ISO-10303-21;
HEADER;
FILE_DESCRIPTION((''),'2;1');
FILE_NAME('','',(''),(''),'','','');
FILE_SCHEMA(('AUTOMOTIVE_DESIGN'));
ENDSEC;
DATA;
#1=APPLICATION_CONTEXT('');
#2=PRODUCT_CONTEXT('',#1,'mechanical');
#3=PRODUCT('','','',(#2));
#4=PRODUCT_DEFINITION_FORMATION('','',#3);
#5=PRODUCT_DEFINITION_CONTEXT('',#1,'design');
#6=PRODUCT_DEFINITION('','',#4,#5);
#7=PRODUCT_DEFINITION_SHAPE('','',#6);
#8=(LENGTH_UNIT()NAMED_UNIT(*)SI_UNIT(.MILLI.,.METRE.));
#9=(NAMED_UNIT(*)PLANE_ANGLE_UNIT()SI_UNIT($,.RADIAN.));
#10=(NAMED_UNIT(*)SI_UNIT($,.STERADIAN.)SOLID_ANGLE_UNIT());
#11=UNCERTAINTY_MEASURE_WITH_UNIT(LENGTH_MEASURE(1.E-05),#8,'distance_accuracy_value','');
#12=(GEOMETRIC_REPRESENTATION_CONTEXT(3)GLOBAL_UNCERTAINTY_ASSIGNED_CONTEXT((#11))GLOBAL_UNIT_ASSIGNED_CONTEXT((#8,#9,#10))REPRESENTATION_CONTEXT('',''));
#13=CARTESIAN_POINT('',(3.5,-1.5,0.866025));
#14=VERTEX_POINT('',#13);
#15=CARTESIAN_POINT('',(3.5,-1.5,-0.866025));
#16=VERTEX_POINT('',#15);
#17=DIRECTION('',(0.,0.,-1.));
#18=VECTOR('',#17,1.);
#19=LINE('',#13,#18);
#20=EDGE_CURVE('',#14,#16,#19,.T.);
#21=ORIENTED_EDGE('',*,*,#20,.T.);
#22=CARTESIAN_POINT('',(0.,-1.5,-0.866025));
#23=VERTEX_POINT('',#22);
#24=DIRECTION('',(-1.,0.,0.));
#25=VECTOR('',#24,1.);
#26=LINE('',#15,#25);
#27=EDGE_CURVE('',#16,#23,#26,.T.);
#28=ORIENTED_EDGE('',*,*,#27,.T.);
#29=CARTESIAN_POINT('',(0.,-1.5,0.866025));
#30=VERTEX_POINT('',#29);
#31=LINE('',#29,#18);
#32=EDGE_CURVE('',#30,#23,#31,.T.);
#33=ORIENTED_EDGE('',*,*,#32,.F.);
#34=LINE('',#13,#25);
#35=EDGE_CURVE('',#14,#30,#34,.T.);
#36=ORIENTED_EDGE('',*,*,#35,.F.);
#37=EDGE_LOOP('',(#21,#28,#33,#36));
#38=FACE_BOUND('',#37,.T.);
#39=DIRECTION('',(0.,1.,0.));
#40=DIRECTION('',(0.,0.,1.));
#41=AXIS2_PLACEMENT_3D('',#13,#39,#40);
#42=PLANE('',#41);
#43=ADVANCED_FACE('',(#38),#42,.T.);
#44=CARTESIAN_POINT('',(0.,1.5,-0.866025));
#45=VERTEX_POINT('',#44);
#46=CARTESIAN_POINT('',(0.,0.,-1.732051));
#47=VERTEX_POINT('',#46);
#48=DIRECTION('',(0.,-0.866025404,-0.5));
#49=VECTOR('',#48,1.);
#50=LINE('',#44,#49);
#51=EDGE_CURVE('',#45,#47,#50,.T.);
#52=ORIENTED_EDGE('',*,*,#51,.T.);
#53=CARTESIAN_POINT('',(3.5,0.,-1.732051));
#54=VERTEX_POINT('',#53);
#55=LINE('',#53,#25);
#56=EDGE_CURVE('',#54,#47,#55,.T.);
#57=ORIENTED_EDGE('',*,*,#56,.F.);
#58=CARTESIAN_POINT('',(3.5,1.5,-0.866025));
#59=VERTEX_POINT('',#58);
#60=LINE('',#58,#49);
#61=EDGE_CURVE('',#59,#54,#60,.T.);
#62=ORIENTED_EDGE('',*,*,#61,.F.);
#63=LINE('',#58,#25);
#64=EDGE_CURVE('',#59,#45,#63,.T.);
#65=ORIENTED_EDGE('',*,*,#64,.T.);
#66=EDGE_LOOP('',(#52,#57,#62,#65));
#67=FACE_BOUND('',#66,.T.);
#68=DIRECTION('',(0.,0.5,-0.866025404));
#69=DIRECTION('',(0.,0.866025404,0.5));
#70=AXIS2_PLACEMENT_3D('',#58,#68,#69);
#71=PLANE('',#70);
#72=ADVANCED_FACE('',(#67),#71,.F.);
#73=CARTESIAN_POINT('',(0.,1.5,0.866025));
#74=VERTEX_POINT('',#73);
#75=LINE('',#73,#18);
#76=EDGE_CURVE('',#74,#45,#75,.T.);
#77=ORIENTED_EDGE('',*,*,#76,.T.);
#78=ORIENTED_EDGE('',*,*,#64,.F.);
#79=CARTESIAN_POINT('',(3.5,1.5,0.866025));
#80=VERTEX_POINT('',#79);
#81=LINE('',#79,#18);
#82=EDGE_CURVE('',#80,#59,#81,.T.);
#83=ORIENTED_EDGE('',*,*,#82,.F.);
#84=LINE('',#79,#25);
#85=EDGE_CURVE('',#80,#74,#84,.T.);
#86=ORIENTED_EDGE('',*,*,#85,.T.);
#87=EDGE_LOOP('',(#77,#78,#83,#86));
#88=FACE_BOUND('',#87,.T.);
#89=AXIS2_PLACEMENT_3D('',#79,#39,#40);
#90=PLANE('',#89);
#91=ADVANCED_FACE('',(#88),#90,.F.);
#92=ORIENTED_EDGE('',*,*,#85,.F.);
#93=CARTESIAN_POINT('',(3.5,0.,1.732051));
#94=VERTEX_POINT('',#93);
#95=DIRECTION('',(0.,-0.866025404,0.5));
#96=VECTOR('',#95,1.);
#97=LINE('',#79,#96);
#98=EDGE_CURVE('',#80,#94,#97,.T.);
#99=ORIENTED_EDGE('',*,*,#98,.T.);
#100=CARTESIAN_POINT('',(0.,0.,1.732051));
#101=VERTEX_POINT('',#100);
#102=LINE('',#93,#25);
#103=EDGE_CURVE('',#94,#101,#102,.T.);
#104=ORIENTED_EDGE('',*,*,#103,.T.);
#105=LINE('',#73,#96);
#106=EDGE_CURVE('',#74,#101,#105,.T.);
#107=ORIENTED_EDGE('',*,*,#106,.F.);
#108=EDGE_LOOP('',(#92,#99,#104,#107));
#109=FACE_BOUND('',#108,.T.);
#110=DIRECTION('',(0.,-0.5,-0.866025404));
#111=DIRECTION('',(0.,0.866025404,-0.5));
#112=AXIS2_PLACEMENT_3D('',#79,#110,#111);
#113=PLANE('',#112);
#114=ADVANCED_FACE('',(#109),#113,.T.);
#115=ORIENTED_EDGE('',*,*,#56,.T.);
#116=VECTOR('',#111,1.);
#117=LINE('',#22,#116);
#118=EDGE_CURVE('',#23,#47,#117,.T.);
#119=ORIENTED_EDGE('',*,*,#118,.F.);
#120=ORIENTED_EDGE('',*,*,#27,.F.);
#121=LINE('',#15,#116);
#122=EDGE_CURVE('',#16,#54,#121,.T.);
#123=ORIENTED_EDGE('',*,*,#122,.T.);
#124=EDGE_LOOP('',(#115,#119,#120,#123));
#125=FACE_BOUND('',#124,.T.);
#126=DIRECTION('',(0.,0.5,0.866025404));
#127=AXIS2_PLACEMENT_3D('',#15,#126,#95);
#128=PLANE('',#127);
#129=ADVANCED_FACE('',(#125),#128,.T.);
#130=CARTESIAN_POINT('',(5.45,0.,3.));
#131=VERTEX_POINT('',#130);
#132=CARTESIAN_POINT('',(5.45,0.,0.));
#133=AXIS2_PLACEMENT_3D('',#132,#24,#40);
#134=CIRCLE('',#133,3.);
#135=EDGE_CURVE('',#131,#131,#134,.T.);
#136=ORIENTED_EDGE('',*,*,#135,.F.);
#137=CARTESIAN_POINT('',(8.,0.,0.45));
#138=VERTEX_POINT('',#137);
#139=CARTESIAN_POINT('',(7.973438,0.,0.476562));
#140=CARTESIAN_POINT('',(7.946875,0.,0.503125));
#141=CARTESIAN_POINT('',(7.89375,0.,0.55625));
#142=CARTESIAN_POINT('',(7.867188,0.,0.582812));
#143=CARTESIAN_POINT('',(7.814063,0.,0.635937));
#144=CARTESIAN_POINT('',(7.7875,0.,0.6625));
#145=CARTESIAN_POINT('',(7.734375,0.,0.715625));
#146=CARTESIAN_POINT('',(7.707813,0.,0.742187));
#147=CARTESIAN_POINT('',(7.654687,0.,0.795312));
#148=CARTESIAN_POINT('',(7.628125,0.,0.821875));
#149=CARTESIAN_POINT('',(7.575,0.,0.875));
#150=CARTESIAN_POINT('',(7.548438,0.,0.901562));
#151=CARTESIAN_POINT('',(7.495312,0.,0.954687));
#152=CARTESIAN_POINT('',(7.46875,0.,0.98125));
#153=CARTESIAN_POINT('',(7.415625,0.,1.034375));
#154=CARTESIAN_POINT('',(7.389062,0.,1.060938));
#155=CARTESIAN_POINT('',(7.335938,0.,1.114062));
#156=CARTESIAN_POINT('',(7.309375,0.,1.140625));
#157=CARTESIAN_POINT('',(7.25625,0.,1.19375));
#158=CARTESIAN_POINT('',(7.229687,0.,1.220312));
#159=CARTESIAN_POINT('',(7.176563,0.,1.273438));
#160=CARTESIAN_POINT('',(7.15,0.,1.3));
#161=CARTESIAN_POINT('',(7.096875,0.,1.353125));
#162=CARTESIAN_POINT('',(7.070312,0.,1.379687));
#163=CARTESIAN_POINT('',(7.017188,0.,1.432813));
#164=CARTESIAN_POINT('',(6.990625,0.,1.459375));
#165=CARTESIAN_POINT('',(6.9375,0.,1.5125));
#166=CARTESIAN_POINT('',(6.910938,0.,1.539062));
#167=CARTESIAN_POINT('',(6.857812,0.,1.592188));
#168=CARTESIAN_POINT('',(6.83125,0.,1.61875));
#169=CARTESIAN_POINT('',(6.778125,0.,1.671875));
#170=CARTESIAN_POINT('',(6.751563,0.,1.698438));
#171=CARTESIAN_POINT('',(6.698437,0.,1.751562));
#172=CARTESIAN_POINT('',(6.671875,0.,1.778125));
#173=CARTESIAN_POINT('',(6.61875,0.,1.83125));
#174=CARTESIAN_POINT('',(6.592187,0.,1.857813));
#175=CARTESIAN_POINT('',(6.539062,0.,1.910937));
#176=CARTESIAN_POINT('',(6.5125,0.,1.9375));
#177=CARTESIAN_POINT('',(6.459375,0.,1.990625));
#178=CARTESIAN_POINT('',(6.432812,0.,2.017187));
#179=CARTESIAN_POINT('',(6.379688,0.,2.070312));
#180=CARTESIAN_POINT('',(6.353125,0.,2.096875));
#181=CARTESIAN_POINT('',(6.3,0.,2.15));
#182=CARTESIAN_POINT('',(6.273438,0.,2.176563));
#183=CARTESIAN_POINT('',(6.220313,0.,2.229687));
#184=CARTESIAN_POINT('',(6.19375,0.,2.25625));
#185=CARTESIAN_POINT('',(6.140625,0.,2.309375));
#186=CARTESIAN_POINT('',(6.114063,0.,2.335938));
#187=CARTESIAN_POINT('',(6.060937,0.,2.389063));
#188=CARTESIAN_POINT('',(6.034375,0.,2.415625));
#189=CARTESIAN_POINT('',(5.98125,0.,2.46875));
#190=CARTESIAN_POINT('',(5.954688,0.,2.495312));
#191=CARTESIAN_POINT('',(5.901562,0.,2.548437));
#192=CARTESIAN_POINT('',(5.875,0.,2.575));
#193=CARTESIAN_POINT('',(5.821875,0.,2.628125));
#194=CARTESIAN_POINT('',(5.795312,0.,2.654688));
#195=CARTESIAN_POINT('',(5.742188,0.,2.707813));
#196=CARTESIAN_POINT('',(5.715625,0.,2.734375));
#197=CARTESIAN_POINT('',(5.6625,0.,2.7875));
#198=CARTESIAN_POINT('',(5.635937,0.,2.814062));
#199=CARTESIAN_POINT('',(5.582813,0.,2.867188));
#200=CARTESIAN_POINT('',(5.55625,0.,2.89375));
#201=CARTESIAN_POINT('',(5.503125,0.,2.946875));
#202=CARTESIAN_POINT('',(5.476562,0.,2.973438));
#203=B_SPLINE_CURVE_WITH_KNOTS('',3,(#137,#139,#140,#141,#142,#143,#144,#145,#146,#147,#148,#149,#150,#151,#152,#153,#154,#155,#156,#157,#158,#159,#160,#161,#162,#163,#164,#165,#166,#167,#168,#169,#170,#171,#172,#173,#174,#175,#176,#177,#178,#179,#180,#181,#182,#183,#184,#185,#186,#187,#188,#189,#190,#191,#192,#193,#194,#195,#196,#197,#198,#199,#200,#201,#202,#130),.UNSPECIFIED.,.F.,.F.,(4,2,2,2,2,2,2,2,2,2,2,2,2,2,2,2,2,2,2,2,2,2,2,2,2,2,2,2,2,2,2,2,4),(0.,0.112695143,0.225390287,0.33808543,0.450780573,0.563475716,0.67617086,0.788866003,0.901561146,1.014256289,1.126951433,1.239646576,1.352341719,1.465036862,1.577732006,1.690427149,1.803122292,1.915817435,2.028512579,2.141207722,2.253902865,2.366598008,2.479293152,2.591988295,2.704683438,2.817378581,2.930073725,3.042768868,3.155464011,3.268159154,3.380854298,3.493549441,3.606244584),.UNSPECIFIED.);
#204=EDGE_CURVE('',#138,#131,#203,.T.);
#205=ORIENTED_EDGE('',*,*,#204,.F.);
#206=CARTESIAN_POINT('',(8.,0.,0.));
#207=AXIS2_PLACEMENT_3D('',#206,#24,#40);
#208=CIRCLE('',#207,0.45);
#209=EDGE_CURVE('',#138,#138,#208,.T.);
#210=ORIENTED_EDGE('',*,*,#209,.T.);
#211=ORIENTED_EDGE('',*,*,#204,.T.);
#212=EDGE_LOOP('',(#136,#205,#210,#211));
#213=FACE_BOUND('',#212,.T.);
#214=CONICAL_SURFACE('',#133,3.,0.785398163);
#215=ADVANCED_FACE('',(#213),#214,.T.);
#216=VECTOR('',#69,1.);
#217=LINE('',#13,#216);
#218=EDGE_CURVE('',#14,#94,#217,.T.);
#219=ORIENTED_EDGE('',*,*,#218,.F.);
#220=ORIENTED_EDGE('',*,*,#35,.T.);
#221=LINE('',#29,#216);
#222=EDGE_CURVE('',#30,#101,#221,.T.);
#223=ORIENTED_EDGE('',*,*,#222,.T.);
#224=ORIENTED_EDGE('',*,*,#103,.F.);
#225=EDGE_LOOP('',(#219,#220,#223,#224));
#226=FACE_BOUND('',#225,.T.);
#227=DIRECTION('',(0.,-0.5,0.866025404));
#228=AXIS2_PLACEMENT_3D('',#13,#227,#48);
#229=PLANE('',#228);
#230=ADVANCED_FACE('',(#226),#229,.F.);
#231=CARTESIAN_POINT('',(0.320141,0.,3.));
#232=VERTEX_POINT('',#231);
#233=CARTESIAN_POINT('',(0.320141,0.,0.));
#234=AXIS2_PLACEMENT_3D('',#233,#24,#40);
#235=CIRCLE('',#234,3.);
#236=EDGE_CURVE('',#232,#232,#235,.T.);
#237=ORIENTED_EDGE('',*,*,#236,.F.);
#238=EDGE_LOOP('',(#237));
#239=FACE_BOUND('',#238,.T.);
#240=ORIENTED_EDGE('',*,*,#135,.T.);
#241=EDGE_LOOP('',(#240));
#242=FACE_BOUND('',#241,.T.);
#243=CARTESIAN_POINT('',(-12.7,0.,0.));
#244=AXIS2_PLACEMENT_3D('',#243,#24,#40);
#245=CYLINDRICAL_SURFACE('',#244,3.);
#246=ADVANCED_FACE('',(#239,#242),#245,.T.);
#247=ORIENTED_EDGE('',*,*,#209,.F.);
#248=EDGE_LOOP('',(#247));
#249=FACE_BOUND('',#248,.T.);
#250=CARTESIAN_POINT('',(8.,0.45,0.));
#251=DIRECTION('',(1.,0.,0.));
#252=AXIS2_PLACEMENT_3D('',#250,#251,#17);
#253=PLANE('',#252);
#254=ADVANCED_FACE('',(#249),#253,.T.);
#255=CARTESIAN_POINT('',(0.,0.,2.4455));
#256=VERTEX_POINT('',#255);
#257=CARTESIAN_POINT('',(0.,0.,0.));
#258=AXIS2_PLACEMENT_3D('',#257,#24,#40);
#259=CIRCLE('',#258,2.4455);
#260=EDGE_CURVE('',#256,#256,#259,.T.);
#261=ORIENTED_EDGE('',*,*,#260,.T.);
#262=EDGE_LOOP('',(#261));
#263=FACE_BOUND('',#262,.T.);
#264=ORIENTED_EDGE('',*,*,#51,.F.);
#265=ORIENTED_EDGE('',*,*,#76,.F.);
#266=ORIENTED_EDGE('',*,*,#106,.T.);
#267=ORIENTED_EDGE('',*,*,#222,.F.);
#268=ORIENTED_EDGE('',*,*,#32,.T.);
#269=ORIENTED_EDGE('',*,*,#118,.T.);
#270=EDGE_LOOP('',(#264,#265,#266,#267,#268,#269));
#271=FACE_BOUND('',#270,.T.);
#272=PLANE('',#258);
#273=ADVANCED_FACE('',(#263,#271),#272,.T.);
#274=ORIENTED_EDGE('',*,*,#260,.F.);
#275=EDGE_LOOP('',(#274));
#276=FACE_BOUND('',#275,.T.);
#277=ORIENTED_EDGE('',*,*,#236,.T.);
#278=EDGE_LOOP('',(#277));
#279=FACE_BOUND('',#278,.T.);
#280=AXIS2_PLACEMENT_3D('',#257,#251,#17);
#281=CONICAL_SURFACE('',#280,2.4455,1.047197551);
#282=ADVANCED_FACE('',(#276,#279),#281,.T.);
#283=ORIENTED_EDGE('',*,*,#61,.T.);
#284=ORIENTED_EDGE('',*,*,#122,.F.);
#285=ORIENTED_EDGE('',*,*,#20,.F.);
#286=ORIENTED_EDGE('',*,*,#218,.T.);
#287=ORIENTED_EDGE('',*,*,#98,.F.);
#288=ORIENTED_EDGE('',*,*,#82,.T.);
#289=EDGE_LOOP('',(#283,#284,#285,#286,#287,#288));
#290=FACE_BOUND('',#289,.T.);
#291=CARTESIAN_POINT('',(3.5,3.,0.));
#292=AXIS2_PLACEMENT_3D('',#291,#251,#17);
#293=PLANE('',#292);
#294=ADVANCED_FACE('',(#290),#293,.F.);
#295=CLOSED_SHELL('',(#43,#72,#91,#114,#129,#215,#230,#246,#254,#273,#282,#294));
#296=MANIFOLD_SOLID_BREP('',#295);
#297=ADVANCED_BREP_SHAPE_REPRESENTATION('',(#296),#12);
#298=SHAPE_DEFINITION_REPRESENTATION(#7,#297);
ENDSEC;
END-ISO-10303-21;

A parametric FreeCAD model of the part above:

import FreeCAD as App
import Part
import Sketcher
Q = App.Units.Quantity


def add_polygon(sketch, points):
    """Adds a closed chain of lines whose ends are joined by coincident constraints."""
    first, n = sketch.GeometryCount, len(points)
    for a, b in zip(points, points[1:] + points[:1]):
        sketch.addGeometry(Part.LineSegment(App.Vector(*a, 0), App.Vector(*b, 0)), False)
    for i in range(n):
        sketch.addConstraint(Sketcher.Constraint("Coincident", first + i, 2, first + (i + 1) % n, 1))

doc = App.newDocument("Part")
body = doc.addObject("PartDesign::Body", "Body")

# Sketch on XY plane
sketch1 = body.newObject("Sketcher::SketchObject", "Sketch")
sketch1.AttachmentSupport = (doc.getObject("XY_Plane"), [""])
sketch1.MapMode = "FlatFace"
add_polygon(sketch1, [(0, 2.4455), (0, 0), (8, 0), (8, 0.45), (5.45, 3), (0.320141, 3)])  # lines 0-5
sketch1.addConstraint(Sketcher.Constraint("Vertical", 0))
sketch1.addConstraint(Sketcher.Constraint("Horizontal", 1))
sketch1.addConstraint(Sketcher.Constraint("Vertical", 2))
sketch1.addConstraint(Sketcher.Constraint("Horizontal", 4))
sketch1.addConstraint(Sketcher.Constraint("Coincident", 0, 2, -1, 1))
sketch1.addConstraint(Sketcher.Constraint("DistanceX", 1, 1, 1, 2, Q("8 mm")))
sketch1.addConstraint(Sketcher.Constraint("Angle", 3, Q("135 deg")))
sketch1.addConstraint(Sketcher.Constraint("Angle", 5, Q("-120 deg")))
sketch1.addConstraint(Sketcher.Constraint("DistanceY", -1, 1, 3, 2, Q("3 mm")))
sketch1.addConstraint(Sketcher.Constraint("DistanceY", 2, 1, 2, 2, Q("0.45 mm")))
sketch1.addConstraint(Sketcher.Constraint("DistanceY", 0, 2, 0, 1, Q("2.4455 mm")))
revolution = body.newObject("PartDesign::Revolution", "Revolution")
revolution.Profile = sketch1
revolution.ReferenceAxis = (sketch1, ["H_Axis"])
revolution.Angle = 360

# Sketch on YZ plane
sketch2 = body.newObject("Sketcher::SketchObject", "Sketch001")
sketch2.AttachmentSupport = (doc.getObject("YZ_Plane"), [""])
sketch2.MapMode = "FlatFace"
add_polygon(sketch2, [(1.5, 0.866025), (1.5, -0.866025), (0, -1.732051), (-1.5, -0.866025), (-1.5, 0.866025), (0, 1.732051)])  # lines 0-5
sketch2.addConstraint(Sketcher.Constraint("Vertical", 0))
sketch2.addConstraint(Sketcher.Constraint("Vertical", 3))
sketch2.addConstraint(Sketcher.Constraint("Symmetric", 0, 2, 3, 2, -1, 1))
sketch2.addConstraint(Sketcher.Constraint("Symmetric", 1, 2, 4, 2, -1, 1))
sketch2.addConstraint(Sketcher.Constraint("PointOnObject", 1, 2, -2))
sketch2.addConstraint(Sketcher.Constraint("Parallel", 2, 5))
sketch2.addConstraint(Sketcher.Constraint("Horizontal", 0, 2, 2, 2))
sketch2.addConstraint(Sketcher.Constraint("Angle", 1, Q("-150 deg")))
sketch2.addConstraint(Sketcher.Constraint("DistanceX", 2, 2, 0, 2, Q("3 mm")))
sketch2.addConstraint(Sketcher.Constraint("DistanceY", 0, 2, 0, 1, Q("1.732051 mm")))
pocket1 = body.newObject("PartDesign::Pocket", "Pocket")
pocket1.Profile = sketch2
pocket1.Length = 3.5
pocket1.Reversed = True

doc.recompute()
